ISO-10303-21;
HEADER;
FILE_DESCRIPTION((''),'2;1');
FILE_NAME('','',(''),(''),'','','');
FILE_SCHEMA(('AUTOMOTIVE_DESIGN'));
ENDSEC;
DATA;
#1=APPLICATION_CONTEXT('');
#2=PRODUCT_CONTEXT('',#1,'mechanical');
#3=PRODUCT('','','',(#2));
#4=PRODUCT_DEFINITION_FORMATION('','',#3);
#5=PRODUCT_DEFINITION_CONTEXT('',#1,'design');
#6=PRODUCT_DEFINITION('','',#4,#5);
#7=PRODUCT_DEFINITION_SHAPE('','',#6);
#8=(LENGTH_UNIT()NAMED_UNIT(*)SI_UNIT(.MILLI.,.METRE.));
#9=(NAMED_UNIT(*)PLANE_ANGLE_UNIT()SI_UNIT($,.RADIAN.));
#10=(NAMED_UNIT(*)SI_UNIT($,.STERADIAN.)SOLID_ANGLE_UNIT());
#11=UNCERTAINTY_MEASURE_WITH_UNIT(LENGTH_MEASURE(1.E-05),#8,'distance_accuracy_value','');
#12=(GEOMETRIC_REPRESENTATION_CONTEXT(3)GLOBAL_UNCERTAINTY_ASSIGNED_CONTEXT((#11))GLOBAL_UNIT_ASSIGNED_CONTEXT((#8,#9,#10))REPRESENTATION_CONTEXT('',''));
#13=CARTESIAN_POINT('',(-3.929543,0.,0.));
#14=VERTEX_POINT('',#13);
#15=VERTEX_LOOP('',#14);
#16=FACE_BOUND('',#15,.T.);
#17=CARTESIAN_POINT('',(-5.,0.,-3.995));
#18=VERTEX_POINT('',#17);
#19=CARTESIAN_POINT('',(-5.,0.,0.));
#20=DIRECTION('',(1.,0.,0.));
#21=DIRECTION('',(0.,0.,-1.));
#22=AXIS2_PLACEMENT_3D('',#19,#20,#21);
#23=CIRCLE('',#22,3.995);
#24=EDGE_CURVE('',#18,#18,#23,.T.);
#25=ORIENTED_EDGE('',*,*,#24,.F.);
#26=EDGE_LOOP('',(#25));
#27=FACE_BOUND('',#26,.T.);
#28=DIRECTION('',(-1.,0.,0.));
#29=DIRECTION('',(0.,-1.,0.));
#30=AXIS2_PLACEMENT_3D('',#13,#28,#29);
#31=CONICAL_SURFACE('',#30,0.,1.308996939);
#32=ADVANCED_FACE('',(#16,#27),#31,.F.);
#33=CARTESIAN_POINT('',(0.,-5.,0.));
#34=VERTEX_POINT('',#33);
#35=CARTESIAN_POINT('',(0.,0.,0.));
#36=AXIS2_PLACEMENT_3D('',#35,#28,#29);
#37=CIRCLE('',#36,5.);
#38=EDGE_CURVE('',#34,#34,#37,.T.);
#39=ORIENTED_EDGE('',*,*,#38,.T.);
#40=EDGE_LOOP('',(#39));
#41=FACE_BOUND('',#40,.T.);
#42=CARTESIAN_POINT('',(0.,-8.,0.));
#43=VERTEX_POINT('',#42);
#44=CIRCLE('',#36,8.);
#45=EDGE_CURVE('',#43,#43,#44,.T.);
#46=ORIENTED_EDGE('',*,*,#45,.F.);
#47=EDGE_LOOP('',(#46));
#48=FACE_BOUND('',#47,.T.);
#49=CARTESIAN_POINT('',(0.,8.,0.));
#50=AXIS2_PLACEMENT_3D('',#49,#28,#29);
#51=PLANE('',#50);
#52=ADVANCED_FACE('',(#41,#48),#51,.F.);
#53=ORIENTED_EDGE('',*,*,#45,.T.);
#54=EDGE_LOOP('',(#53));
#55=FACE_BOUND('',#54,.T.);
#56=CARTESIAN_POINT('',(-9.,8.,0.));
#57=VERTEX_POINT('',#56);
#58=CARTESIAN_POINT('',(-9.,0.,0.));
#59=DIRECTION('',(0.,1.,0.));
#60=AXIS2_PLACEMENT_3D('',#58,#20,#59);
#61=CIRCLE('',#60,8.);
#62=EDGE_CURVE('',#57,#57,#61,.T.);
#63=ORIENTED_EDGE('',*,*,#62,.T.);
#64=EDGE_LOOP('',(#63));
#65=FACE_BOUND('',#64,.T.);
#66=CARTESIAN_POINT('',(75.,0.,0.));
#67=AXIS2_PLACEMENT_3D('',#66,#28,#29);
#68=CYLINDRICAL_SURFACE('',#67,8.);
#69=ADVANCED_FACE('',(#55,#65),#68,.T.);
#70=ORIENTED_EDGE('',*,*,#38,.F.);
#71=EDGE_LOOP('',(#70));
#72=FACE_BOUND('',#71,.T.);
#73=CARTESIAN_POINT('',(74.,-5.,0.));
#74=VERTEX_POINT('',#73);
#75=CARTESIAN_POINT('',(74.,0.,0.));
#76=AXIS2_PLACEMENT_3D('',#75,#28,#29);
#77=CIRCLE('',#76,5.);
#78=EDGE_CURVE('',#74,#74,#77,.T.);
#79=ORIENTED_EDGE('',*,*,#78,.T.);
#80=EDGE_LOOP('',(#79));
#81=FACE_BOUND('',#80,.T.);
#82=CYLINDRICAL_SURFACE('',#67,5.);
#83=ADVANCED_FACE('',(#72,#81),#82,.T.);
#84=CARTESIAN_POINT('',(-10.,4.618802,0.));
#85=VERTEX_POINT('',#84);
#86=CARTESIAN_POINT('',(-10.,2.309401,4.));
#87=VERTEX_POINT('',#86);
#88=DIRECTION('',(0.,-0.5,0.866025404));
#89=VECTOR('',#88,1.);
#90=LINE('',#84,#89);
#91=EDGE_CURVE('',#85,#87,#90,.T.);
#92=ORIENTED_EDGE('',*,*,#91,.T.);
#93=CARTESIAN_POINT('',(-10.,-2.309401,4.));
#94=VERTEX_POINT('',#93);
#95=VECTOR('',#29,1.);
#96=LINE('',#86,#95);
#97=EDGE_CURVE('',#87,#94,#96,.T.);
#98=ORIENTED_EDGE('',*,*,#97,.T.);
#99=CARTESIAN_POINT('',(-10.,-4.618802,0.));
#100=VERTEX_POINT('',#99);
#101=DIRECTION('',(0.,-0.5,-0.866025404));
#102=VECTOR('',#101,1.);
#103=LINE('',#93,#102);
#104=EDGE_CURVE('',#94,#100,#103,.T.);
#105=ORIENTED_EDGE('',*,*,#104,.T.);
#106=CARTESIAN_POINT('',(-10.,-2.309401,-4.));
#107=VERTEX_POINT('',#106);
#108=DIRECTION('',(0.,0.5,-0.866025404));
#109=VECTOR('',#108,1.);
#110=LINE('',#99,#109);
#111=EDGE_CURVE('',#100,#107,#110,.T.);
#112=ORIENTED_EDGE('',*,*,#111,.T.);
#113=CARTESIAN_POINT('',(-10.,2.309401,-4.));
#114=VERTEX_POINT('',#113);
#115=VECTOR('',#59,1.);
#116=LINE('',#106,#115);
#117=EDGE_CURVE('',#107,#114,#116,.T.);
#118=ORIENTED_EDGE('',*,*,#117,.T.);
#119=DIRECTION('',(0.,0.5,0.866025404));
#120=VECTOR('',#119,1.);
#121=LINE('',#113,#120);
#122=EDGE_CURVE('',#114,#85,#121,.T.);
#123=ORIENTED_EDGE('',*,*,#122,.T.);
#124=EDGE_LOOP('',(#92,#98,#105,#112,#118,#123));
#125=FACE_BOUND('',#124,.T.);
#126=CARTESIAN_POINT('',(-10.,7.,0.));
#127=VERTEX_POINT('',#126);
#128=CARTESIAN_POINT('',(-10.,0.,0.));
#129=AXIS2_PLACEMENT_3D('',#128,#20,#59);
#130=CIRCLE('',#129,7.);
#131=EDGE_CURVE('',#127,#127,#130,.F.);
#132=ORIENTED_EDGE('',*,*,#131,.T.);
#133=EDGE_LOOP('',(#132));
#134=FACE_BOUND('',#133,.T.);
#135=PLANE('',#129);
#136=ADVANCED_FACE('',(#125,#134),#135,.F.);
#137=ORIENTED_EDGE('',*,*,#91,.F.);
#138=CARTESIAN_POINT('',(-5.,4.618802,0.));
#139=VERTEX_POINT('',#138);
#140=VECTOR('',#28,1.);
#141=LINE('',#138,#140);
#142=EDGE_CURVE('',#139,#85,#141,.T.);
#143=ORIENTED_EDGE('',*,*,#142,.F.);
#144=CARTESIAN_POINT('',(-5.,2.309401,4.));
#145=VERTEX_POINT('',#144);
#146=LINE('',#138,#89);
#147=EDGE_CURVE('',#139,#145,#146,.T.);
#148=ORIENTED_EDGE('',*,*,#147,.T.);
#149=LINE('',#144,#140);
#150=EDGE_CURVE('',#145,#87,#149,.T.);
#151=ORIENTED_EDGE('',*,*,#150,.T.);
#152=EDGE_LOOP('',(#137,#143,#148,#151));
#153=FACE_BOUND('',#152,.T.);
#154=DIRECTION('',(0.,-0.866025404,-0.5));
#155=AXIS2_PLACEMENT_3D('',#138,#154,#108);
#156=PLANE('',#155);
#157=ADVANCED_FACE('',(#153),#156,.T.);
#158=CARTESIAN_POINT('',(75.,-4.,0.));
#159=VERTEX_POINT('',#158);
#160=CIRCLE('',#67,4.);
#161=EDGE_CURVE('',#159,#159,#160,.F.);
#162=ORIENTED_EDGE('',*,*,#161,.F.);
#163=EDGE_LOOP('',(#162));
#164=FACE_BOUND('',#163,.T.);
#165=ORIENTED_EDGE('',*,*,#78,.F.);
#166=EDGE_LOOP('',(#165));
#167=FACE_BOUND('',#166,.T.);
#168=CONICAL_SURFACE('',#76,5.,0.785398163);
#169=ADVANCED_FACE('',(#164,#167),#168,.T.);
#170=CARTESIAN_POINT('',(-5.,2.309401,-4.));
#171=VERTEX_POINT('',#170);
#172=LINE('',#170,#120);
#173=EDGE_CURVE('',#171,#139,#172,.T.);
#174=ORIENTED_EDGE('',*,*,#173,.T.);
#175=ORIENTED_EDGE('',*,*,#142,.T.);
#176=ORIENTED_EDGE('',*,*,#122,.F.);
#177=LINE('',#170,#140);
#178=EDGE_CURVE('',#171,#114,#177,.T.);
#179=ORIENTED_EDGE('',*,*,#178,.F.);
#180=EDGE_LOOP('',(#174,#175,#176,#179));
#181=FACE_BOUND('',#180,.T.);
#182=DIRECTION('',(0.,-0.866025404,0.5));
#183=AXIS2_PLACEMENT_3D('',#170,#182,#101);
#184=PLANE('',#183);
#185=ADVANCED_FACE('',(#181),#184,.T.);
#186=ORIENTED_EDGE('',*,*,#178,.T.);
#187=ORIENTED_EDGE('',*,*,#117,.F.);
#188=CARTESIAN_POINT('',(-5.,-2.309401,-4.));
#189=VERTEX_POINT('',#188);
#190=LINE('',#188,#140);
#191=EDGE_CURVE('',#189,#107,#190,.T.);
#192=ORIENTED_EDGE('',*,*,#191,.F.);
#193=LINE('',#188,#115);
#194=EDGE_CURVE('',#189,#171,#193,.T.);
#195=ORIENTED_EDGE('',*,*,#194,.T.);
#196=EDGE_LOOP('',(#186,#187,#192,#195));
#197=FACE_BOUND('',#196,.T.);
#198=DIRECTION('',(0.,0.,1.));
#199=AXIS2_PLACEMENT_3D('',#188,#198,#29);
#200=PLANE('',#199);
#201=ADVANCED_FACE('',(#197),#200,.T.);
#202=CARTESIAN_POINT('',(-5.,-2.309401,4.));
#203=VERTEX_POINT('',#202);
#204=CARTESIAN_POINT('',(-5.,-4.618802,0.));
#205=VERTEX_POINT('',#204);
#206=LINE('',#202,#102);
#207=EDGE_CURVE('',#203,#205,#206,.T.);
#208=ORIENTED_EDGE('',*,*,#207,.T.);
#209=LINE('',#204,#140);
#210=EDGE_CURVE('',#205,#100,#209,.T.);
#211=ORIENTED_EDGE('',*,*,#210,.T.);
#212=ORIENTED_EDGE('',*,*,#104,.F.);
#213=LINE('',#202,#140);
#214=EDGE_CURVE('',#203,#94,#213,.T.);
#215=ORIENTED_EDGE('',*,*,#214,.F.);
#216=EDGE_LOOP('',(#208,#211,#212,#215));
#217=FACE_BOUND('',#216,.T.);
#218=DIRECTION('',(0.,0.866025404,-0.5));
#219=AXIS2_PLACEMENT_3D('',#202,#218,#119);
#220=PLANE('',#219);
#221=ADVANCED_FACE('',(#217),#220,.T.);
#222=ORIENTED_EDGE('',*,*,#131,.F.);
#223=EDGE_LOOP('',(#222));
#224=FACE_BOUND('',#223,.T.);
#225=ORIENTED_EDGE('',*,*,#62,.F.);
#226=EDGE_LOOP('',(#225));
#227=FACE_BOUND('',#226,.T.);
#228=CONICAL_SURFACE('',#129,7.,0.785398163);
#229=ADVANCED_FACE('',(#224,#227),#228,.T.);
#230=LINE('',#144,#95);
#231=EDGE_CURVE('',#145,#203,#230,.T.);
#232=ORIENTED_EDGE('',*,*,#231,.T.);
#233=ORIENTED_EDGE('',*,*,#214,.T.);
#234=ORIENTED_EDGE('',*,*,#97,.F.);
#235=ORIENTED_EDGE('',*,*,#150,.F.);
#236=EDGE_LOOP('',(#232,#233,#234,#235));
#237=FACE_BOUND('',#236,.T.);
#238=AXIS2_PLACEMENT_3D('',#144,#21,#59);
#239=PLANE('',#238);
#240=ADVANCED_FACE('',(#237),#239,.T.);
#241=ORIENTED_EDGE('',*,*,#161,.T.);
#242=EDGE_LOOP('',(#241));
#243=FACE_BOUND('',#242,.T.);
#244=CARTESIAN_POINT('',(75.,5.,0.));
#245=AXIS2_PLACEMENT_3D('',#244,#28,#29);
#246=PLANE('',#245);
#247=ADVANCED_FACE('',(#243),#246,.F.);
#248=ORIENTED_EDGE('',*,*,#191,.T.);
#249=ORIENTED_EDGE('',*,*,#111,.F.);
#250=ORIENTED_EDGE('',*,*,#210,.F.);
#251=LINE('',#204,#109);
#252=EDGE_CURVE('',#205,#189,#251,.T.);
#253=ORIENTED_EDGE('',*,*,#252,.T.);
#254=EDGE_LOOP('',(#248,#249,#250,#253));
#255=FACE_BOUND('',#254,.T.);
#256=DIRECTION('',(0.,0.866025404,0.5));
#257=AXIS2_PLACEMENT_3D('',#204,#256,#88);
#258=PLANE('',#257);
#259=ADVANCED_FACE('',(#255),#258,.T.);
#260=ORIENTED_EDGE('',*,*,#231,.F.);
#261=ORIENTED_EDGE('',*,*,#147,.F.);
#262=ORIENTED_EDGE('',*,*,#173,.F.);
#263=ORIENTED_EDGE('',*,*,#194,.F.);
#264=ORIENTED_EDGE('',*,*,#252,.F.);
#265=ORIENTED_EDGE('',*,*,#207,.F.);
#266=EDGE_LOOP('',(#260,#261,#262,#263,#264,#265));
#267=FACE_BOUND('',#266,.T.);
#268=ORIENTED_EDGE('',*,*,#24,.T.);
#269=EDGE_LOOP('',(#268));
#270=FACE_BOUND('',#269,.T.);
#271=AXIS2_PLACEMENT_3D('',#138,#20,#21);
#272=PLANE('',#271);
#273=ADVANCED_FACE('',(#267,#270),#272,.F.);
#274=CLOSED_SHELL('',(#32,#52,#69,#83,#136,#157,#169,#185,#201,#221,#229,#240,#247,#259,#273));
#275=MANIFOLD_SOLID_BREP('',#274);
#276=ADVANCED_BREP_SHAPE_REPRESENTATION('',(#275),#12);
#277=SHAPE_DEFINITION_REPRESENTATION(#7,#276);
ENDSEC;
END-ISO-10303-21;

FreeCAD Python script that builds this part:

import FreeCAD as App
import Part
import Sketcher
from FreeCAD import Vector
Q = App.Units.Quantity


def edges_at(feature, points):
    """Names of the edges that pass closest to the given points."""
    edges = feature.Shape.Edges
    near = lambda p: min(range(len(edges)), key=lambda i: edges[i].distToShape(Part.Vertex(*p))[0])
    return sorted({f"Edge{near(p) + 1}" for p in points})


def add_polygon(sketch, points):
    """Adds a closed chain of lines whose ends are joined by coincident constraints."""
    first, n = sketch.GeometryCount, len(points)
    for a, b in zip(points, points[1:] + points[:1]):
        sketch.addGeometry(Part.LineSegment(App.Vector(*a, 0), App.Vector(*b, 0)), False)
    for i in range(n):
        sketch.addConstraint(Sketcher.Constraint("Coincident", first + i, 2, first + (i + 1) % n, 1))

doc = App.newDocument("Part")
body = doc.addObject("PartDesign::Body", "Body")

# Sketch on XY plane
sketch1 = body.newObject("Sketcher::SketchObject", "Sketch")
sketch1.AttachmentSupport = (doc.getObject("XY_Plane"), [""])
sketch1.MapMode = "FlatFace"
add_polygon(sketch1, [(-10, 8), (-10, 0), (75, 0), (75, 5), (0, 5), (0, 8)])  # lines 0-5
sketch1.addConstraint([
    Sketcher.Constraint("Vertical", 0),
    Sketcher.Constraint("Horizontal", 1),
    Sketcher.Constraint("Vertical", 2),
    Sketcher.Constraint("Horizontal", 3),
    Sketcher.Constraint("Vertical", 4),
    Sketcher.Constraint("Horizontal", 5),
    Sketcher.Constraint("PointOnObject", 0, 2, -1),
    Sketcher.Constraint("PointOnObject", 3, 2, -2),
    Sketcher.Constraint("DistanceX", 1, 1, 1, 2, Q("85 mm")),
    Sketcher.Constraint("DistanceX", 3, 2, 3, 1, Q("75 mm")),
    Sketcher.Constraint("DistanceY", 0, 2, 0, 1, Q("8 mm")),
    Sketcher.Constraint("DistanceY", 2, 1, 2, 2, Q("5 mm")),
])
revolution = body.newObject("PartDesign::Revolution", "Revolution")
revolution.Profile = sketch1
revolution.ReferenceAxis = (sketch1, ["H_Axis"])
revolution.Angle = 360

# Sketch on XY plane
sketch2 = body.newObject("Sketcher::SketchObject", "Sketch001")
sketch2.AttachmentSupport = (doc.getObject("XY_Plane"), [""])
sketch2.MapMode = "FlatFace"
add_polygon(sketch2, [(-10, 4), (-10, 0), (-3.9, 0), (-5, 4)])  # lines 0-3
sketch2.addConstraint([
    Sketcher.Constraint("Vertical", 0),
    Sketcher.Constraint("Horizontal", 1),
    Sketcher.Constraint("Horizontal", 3),
    Sketcher.Constraint("PointOnObject", 0, 2, -1),
    Sketcher.Constraint("DistanceX", 3, 2, 3, 1, Q("5 mm")),
    Sketcher.Constraint("Angle", 2, Q("105 deg")),
    Sketcher.Constraint("DistanceX", 0, 2, -1, 1, Q("10 mm")),
    Sketcher.Constraint("DistanceY", 0, 2, 0, 1, Q("3.995 mm")),
])
groove = body.newObject("PartDesign::Groove", "Groove")
groove.Profile = sketch2
groove.ReferenceAxis = (sketch2, ["H_Axis"])
groove.Angle = 360

# Sketch on YZ plane
sketch3 = body.newObject("Sketcher::SketchObject", "Sketch002")
sketch3.AttachmentSupport = (doc.getObject("YZ_Plane"), [""])
sketch3.MapMode = "FlatFace"
sketch3.AttachmentOffset = App.Placement(Vector(0, 0, -10), App.Rotation())
add_polygon(sketch3, [(4.6, 0), (2.3, 4), (-2.3, 4), (-4.6, 0), (-2.3, -4), (2.3, -4)])  # lines 0-5
sketch3.addConstraint([
    Sketcher.Constraint("Horizontal", 1),
    Sketcher.Constraint("Horizontal", 4),
    Sketcher.Constraint("Symmetric", 0, 2, 3, 2, -1, 1),
    Sketcher.Constraint("Symmetric", 2, 2, 5, 2, -1, 1),
    Sketcher.Constraint("PointOnObject", 2, 2, -1),
    Sketcher.Constraint("Parallel", 2, 5),
    Sketcher.Constraint("Vertical", 1, 2, 3, 2),
    Sketcher.Constraint("Angle", 0, Q("120 deg")),
    Sketcher.Constraint("DistanceY", -1, 1, 0, 2, Q("4 mm")),
    Sketcher.Constraint("DistanceX", -1, 1, 0, 2, Q("2.309401 mm")),
])
pocket1 = body.newObject("PartDesign::Pocket", "Pocket")
pocket1.Profile = sketch3
pocket1.Length = 5
pocket1.Reversed = True
doc.recompute()

chamfer = body.newObject("PartDesign::Chamfer", "Chamfer")
chamfer.Base = (pocket1, edges_at(pocket1, [(75, 5, 0), (-10, 8, 0)]))
chamfer.Size = 1

doc.recompute()
